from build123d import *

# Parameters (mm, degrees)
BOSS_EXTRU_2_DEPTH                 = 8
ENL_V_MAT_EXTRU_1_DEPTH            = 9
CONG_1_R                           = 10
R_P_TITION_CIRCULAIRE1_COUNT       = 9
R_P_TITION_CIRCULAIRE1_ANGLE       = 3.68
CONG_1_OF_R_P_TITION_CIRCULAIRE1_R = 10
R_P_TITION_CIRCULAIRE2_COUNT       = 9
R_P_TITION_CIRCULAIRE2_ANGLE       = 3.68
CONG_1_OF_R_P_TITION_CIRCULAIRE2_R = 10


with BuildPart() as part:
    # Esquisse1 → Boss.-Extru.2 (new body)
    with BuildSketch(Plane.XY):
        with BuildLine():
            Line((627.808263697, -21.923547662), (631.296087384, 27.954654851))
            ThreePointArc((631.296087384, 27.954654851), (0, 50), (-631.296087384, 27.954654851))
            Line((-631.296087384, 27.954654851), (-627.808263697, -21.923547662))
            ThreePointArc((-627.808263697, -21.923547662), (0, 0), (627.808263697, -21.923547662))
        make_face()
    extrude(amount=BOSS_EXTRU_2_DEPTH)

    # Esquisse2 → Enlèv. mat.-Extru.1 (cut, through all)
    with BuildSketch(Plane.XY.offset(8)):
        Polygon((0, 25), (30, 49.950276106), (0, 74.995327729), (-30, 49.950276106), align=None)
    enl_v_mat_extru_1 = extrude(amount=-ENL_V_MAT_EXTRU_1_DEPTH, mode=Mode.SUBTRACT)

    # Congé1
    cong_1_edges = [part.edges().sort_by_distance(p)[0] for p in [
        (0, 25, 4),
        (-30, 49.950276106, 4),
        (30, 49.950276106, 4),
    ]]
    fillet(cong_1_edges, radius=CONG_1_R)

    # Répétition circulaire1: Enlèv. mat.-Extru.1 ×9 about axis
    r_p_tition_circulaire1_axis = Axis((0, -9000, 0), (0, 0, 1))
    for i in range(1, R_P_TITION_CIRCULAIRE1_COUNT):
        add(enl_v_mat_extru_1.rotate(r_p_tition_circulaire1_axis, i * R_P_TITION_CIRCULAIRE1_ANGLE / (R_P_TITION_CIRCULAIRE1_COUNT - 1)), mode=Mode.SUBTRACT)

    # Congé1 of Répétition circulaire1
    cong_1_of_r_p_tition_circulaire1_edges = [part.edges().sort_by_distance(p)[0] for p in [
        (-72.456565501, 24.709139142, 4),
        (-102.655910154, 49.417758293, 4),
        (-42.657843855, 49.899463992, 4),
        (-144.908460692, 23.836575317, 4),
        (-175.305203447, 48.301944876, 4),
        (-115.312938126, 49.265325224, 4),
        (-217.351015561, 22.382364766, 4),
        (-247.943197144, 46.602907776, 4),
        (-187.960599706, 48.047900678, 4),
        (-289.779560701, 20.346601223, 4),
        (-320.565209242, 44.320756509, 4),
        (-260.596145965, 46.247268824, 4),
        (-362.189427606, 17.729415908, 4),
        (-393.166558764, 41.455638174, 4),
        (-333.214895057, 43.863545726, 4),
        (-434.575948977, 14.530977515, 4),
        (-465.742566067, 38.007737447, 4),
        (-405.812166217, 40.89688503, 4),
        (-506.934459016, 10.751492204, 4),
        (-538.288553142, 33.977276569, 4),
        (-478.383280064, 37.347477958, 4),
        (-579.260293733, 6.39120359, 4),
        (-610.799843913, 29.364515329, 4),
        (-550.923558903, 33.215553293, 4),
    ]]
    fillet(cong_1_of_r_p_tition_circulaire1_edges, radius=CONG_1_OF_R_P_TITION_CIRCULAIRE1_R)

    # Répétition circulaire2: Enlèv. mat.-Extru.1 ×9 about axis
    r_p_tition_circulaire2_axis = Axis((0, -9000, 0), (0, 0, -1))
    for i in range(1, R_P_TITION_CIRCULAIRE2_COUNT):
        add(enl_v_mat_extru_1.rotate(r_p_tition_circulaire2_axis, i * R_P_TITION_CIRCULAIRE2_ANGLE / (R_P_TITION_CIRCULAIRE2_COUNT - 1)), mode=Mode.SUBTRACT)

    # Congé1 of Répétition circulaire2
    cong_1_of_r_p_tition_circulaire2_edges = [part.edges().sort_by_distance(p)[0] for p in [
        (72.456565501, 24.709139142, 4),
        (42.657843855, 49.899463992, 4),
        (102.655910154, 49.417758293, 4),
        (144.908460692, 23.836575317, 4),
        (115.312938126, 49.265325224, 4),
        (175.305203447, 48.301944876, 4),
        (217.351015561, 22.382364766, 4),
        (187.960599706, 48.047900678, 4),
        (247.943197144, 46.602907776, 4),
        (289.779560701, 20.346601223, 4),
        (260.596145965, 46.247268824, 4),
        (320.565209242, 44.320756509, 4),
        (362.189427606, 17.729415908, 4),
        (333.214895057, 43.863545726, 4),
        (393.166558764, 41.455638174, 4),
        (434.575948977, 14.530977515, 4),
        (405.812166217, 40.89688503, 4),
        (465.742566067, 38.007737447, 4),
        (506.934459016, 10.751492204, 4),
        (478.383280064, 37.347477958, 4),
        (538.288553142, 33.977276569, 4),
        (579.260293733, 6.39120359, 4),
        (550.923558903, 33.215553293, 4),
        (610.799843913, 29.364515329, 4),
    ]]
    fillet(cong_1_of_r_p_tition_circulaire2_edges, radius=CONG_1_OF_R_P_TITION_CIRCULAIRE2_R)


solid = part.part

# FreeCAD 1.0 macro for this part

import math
import FreeCAD as App
import Part
import Sketcher

V = App.Vector
Q = App.Units.Quantity


def edges_at(feature, points):
    """Names of the edges that pass closest to the given points."""
    edges = feature.Shape.Edges
    near = lambda p: min(range(len(edges)), key=lambda i: edges[i].distToShape(Part.Vertex(*p))[0])
    return sorted({f"Edge{near(p) + 1}" for p in points})


def add_polygon(sketch, points):
    """Adds a closed chain of lines whose ends are joined by coincident constraints."""
    first, n = sketch.GeometryCount, len(points)
    for a, b in zip(points, points[1:] + points[:1]):
        sketch.addGeometry(Part.LineSegment(App.Vector(*a, 0), App.Vector(*b, 0)), False)
    for i in range(n):
        sketch.addConstraint(Sketcher.Constraint("Coincident", first + i, 2, first + (i + 1) % n, 1))

doc = App.newDocument("Part")
body = doc.addObject("PartDesign::Body", "Body")

# Sketch on XY plane
sketch1 = body.newObject("Sketcher::SketchObject", "Sketch")
sketch1.AttachmentSupport = (doc.getObject("XY_Plane"), [""])
sketch1.MapMode = "FlatFace"
sketch1.addGeometry([
    Part.LineSegment(V(628, -22, 0), V(631, 28, 0)),
    Part.ArcOfCircle(Part.Circle(V(0, -9000, 0), V(0, 0, 1), 9050), math.radians(86), math.radians(94)),
    Part.LineSegment(V(-631, 28, 0), V(-628, -22, 0)),
    Part.ArcOfCircle(Part.Circle(V(0, -9000, 0), V(0, 0, 1), 9000), math.radians(86), math.radians(94)),
], False)
sketch1.addConstraint([
    Sketcher.Constraint("Coincident", 0, 2, 1, 1),
    Sketcher.Constraint("Coincident", 1, 2, 2, 1),
    Sketcher.Constraint("Coincident", 2, 2, 3, 2),
    Sketcher.Constraint("Coincident", 3, 1, 0, 1),
    Sketcher.Constraint("Coincident", 3, 3, 1, 3),
    Sketcher.Constraint("PointOnObject", 1, 3, -2),
    Sketcher.Constraint("Radius", 1, 9050.0),
    Sketcher.Constraint("Radius", 3, 9000.0),
    Sketcher.Constraint("Angle", 0, Q("86 deg")),
    Sketcher.Constraint("Angle", 2, Q("-86 deg")),
    Sketcher.Constraint("DistanceY", 1, 3, -1, 1, 9000.0),
    Sketcher.Constraint("DistanceX", 2, 2, 0, 2, 1259.104351),
    Sketcher.Constraint("DistanceX", -1, 1, 0, 2, 631.296087),
])
pad1 = body.newObject("PartDesign::Pad", "Pad")
pad1.Profile = sketch1
pad1.Length = 8

# Sketch on XY plane
sketch2 = body.newObject("Sketcher::SketchObject", "Sketch001")
sketch2.AttachmentSupport = (doc.getObject("XY_Plane"), [""])
sketch2.MapMode = "FlatFace"
sketch2.AttachmentOffset = App.Placement(V(0, 0, 8), App.Rotation())
add_polygon(sketch2, [(0, 25), (30, 50), (0, 75), (-30, 50)])  # lines 0-3
sketch2.addConstraint([
    Sketcher.Constraint("Symmetric", 0, 2, 2, 2, -2),
    Sketcher.Constraint("PointOnObject", 1, 2, -2),
    Sketcher.Constraint("PointOnObject", 3, 2, -2),
    Sketcher.Constraint("DistanceX", -1, 1, 0, 2, 30.0),
    Sketcher.Constraint("DistanceY", -1, 1, 3, 2, 25.0),
    Sketcher.Constraint("DistanceY", 0, 2, 1, 2, 25.045052),
    Sketcher.Constraint("Distance", 0, 39.019435),
])
pocket1 = body.newObject("PartDesign::Pocket", "Pocket")
pocket1.Profile = sketch2
pocket1.Type = "ThroughAll"
doc.recompute()

fillet = body.newObject("PartDesign::Fillet", "Fillet")
fillet.Base = (pocket1, edges_at(pocket1, [(0, 25, 4), (-30, 49.95, 4), (30, 49.95, 4)]))
fillet.Radius = 10
doc.recompute()

datumline = body.newObject("PartDesign::Line", "DatumLine")
datumline.Placement = App.Placement(V(0, -9000, 0), App.Rotation(V(0, 0, 1), V(0, 0, 1)))
polarpattern = body.newObject("PartDesign::PolarPattern", "PolarPattern")
polarpattern.Originals = [pocket1]
polarpattern.Axis = (datumline, [""])
polarpattern.Angle = 3.68
polarpattern.Occurrences = 9
body.Tip = polarpattern
doc.recompute()

fillet2 = body.newObject("PartDesign::Fillet", "Fillet001")
fillet2.Base = (polarpattern, edges_at(polarpattern, [
    (-72.457, 24.709, 4),
    (-102.656, 49.418, 4),
    (-42.658, 49.899, 4),
    (-144.908, 23.837, 4),
    (-175.305, 48.302, 4),
    (-115.313, 49.265, 4),
    (-217.351, 22.382, 4),
    (-247.943, 46.603, 4),
    (-187.961, 48.048, 4),
    (-289.78, 20.347, 4),
    (-320.565, 44.321, 4),
    (-260.596, 46.247, 4),
    (-362.189, 17.729, 4),
    (-393.167, 41.456, 4),
    (-333.215, 43.864, 4),
    (-434.576, 14.531, 4),
    (-465.743, 38.008, 4),
    (-405.812, 40.897, 4),
    (-506.934, 10.751, 4),
    (-538.289, 33.977, 4),
    (-478.383, 37.347, 4),
    (-579.26, 6.391, 4),
    (-610.8, 29.365, 4),
    (-550.924, 33.216, 4),
]))
fillet2.Radius = 10
doc.recompute()

datumline2 = body.newObject("PartDesign::Line", "DatumLine001")
datumline2.Placement = App.Placement(V(0, -9000, 0), App.Rotation(V(0, 0, 1), V(0, 0, -1)))
polarpattern2 = body.newObject("PartDesign::PolarPattern", "PolarPattern001")
polarpattern2.Originals = [pocket1]
polarpattern2.Axis = (datumline2, [""])
polarpattern2.Angle = 3.68
polarpattern2.Occurrences = 9
body.Tip = polarpattern2
doc.recompute()

fillet3 = body.newObject("PartDesign::Fillet", "Fillet002")
fillet3.Base = (polarpattern2, edges_at(polarpattern2, [
    (72.457, 24.709, 4),
    (42.658, 49.899, 4),
    (102.656, 49.418, 4),
    (144.908, 23.837, 4),
    (115.313, 49.265, 4),
    (175.305, 48.302, 4),
    (217.351, 22.382, 4),
    (187.961, 48.048, 4),
    (247.943, 46.603, 4),
    (289.78, 20.347, 4),
    (260.596, 46.247, 4),
    (320.565, 44.321, 4),
    (362.189, 17.729, 4),
    (333.215, 43.864, 4),
    (393.167, 41.456, 4),
    (434.576, 14.531, 4),
    (405.812, 40.897, 4),
    (465.743, 38.008, 4),
    (506.934, 10.751, 4),
    (478.383, 37.347, 4),
    (538.289, 33.977, 4),
    (579.26, 6.391, 4),
    (550.924, 33.216, 4),
    (610.8, 29.365, 4),
]))
fillet3.Radius = 10

doc.recompute()
